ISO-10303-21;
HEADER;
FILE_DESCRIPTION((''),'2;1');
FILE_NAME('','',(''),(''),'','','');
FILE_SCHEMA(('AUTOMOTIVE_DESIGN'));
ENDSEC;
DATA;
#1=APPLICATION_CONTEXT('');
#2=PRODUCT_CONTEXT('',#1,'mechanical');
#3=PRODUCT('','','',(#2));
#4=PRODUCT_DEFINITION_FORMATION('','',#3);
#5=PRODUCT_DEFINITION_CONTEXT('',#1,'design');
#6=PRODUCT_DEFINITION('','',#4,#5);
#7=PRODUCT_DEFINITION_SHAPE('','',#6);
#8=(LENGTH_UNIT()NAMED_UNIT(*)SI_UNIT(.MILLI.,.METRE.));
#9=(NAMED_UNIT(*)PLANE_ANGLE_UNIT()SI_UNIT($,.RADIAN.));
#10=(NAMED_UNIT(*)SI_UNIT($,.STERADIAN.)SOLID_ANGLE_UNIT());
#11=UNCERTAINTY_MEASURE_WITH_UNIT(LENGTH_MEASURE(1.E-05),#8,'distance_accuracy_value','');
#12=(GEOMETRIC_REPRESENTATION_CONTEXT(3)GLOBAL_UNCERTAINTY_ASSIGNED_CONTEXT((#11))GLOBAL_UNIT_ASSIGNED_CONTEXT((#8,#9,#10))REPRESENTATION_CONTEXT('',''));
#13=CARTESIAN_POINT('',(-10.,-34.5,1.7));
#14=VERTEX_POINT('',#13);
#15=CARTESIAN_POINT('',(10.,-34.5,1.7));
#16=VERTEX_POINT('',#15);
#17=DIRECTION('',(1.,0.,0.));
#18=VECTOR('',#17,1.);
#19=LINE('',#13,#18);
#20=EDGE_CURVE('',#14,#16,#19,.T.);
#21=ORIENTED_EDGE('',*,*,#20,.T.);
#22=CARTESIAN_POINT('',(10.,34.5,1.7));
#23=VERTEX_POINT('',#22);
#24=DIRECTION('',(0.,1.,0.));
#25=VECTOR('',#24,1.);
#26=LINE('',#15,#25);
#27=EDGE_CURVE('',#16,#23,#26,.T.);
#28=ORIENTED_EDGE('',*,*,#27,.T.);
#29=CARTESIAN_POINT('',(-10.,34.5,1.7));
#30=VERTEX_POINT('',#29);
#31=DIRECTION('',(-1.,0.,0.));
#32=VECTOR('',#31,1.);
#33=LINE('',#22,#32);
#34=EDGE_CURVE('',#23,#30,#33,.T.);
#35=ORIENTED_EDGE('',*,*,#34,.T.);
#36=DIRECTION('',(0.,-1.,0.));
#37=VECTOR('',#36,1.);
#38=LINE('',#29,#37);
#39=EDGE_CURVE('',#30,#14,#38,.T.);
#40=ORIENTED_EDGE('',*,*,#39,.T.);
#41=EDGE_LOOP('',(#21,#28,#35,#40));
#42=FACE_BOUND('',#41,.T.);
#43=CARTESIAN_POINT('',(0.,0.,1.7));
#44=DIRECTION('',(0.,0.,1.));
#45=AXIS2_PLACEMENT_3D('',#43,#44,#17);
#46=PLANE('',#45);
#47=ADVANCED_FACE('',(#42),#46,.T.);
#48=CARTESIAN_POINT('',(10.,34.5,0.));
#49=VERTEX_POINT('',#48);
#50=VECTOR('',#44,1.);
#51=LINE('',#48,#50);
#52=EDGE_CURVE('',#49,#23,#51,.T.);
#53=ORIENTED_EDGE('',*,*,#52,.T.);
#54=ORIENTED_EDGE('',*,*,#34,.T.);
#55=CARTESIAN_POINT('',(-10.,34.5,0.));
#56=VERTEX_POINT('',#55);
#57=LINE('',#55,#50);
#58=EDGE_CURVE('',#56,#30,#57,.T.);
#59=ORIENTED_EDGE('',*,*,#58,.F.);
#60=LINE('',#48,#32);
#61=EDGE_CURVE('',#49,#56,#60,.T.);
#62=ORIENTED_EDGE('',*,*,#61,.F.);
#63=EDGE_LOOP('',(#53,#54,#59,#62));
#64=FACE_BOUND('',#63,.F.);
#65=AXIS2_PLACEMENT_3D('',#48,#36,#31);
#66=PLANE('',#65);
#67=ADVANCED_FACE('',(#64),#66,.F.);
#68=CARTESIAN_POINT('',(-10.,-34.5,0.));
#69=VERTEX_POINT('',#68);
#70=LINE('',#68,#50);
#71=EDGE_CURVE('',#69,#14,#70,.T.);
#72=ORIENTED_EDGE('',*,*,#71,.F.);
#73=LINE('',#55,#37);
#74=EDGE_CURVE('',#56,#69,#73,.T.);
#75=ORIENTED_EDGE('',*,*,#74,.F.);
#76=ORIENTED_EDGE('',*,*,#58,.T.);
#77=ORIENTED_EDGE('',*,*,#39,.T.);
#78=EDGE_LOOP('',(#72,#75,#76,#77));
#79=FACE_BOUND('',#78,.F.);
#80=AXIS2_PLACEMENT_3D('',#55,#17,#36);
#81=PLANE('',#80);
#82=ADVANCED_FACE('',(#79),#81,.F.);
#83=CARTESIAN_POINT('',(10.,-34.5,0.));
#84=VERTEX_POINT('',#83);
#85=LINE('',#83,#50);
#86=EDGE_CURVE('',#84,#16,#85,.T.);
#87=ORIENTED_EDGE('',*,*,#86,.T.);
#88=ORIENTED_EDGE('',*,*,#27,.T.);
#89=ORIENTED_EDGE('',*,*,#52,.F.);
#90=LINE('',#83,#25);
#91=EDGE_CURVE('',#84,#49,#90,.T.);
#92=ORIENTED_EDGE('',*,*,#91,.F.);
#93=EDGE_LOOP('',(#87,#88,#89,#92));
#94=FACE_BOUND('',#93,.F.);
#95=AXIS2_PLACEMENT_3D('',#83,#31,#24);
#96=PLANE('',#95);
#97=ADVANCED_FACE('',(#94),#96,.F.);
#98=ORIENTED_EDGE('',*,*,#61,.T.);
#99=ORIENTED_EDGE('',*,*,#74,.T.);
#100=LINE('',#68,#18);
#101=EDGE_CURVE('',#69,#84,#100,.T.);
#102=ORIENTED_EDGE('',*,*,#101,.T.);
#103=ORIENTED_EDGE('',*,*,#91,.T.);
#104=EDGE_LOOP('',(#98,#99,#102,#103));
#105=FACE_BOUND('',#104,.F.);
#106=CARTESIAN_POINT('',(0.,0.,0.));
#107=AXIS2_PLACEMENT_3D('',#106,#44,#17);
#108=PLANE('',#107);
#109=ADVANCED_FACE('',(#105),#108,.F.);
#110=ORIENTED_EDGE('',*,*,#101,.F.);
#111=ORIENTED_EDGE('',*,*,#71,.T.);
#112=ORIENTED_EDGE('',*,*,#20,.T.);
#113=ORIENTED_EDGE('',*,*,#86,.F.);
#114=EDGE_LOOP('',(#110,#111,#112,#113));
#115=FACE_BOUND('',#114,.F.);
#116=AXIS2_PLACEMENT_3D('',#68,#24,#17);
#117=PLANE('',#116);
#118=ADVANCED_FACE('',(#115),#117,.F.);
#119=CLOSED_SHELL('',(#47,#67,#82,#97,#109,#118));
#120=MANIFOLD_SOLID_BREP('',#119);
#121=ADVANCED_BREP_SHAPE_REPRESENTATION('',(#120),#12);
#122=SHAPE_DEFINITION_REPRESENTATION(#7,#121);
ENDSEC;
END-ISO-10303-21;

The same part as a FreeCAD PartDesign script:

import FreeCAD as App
import Part
import Sketcher
Q = App.Units.Quantity


def add_polygon(sketch, points):
    """Adds a closed chain of lines whose ends are joined by coincident constraints."""
    first, n = sketch.GeometryCount, len(points)
    for a, b in zip(points, points[1:] + points[:1]):
        sketch.addGeometry(Part.LineSegment(App.Vector(*a, 0), App.Vector(*b, 0)), False)
    for i in range(n):
        sketch.addConstraint(Sketcher.Constraint("Coincident", first + i, 2, first + (i + 1) % n, 1))

doc = App.newDocument("Part")
body = doc.addObject("PartDesign::Body", "Body")

# Sketch on XY plane
sketch1 = doc.addObject("Sketcher::SketchObject", "Sketch")
body.addObject(sketch1)
sketch1.AttachmentSupport = (doc.XY_Plane, [""])
sketch1.MapMode = "FlatFace"
add_polygon(sketch1, [(-10, 34.5), (-10, -34.5), (10, -34.5), (10, 34.5)])  # lines 0-3
sketch1.addConstraint([
    Sketcher.Constraint("Vertical", 0),
    Sketcher.Constraint("Horizontal", 1),
    Sketcher.Constraint("Vertical", 2),
    Sketcher.Constraint("Horizontal", 3),
    Sketcher.Constraint("Symmetric", 0, 2, 2, 2, -1, 1),
    Sketcher.Constraint("DistanceX", 1, 1, 1, 2, Q("20 mm")),
    Sketcher.Constraint("DistanceY", 0, 2, 0, 1, Q("69 mm")),
])
pad1 = doc.addObject("PartDesign::Pad", "Pad")
body.addObject(pad1)
pad1.Profile = sketch1
pad1.Length = 1.7

doc.recompute()
